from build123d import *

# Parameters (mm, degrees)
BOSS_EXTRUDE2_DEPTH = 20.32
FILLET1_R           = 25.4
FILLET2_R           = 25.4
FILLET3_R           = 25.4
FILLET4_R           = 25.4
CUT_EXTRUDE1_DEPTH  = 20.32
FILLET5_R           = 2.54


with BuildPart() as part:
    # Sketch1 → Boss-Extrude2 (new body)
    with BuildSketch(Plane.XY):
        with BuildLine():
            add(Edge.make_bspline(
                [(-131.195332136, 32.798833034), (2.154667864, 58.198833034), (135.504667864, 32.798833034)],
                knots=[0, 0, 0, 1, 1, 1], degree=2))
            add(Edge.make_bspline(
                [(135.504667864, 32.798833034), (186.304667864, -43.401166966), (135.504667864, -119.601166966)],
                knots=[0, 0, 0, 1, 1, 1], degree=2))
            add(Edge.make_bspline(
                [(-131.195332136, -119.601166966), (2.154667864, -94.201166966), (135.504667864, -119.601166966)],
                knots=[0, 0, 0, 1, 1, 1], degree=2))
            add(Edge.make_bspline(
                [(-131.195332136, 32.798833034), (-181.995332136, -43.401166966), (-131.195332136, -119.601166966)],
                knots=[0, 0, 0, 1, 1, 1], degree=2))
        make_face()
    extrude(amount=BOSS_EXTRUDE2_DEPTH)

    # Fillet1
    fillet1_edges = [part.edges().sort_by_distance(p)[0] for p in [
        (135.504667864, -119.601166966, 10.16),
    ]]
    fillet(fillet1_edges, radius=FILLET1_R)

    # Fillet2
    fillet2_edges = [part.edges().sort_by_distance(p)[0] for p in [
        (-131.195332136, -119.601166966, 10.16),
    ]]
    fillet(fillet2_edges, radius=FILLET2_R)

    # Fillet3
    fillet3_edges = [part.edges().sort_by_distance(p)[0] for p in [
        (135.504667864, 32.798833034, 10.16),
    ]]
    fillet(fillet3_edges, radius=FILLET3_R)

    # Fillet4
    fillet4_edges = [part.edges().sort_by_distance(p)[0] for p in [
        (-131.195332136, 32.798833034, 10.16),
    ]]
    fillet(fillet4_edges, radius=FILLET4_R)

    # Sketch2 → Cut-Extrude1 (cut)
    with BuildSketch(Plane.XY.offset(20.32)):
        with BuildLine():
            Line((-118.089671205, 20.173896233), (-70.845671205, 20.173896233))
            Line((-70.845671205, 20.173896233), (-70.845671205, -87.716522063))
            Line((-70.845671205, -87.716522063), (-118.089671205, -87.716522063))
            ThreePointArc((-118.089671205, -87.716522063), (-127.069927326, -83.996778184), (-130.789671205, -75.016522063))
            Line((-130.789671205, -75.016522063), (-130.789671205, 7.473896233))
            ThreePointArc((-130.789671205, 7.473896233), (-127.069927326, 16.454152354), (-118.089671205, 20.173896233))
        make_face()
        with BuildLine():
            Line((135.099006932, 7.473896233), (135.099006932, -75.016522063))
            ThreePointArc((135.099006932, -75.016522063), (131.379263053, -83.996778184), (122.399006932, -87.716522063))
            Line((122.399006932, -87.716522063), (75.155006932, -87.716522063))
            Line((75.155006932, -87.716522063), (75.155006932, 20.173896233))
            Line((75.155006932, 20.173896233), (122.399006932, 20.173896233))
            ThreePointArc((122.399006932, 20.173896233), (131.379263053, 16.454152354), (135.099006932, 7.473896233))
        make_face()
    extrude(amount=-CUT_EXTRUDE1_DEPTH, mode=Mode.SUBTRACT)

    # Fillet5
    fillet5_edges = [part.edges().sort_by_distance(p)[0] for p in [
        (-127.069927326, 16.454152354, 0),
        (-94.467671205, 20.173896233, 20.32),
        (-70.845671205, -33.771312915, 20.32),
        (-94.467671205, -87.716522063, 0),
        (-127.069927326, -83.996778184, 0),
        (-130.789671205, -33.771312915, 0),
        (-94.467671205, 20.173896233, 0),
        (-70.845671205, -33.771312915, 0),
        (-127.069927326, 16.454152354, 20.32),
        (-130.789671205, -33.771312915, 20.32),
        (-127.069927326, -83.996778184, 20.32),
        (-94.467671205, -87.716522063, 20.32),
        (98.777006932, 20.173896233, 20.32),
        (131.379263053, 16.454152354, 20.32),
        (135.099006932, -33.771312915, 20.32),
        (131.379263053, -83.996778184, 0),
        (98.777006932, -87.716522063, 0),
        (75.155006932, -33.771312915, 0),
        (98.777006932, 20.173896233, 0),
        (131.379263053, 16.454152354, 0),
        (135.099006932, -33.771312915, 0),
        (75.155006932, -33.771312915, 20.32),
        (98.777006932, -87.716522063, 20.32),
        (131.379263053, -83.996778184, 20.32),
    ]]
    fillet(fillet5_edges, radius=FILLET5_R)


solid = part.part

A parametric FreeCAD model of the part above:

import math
import FreeCAD as App
import Part
import Sketcher

V = App.Vector
Q = App.Units.Quantity


def edges_at(feature, points):
    """Names of the edges that pass closest to the given points."""
    edges = feature.Shape.Edges
    near = lambda p: min(range(len(edges)), key=lambda i: edges[i].distToShape(Part.Vertex(*p))[0])
    return sorted({f"Edge{near(p) + 1}" for p in points})

doc = App.newDocument("Part")
body = doc.addObject("PartDesign::Body", "Body")

sketch1 = body.newObject("Sketcher::SketchObject", "Sketch")
sketch1.AttachmentSupport = (doc.getObject("XY_Plane"), [""])
sketch1.MapMode = "FlatFace"
sketch1.addGeometry([
    Part.BSplineCurve([V(-131.195332, 32.798833, 0), V(2.154668, 58.198833, 0), V(135.504668, 32.798833, 0)], [3, 3], [0, 1], False, 2, [1, 1, 1], False),
    Part.BSplineCurve([V(-131.195332, 32.798833, 0), V(-181.995332, -43.401167, 0), V(-131.195332, -119.601167, 0)], [3, 3], [0, 1], False, 2, [1, 1, 1], False),
    Part.BSplineCurve([V(-131.195332, -119.601167, 0), V(2.154668, -94.201167, 0), V(135.504668, -119.601167, 0)], [3, 3], [0, 1], False, 2, [1, 1, 1], False),
    Part.BSplineCurve([V(135.504668, 32.798833, 0), V(186.304668, -43.401167, 0), V(135.504668, -119.601167, 0)], [3, 3], [0, 1], False, 2, [1, 1, 1], False),
], False)
sketch1.addConstraint([
    Sketcher.Constraint("Block", 0),
    Sketcher.Constraint("Block", 1),
    Sketcher.Constraint("Block", 2),
    Sketcher.Constraint("Block", 3),
])
pad1 = body.newObject("PartDesign::Pad", "Pad")
pad1.Profile = sketch1
pad1.Length = Q("0.8 in")
doc.recompute()

fillet = body.newObject("PartDesign::Fillet", "Fillet")
fillet.Base = (pad1, edges_at(pad1, [(135.505, -119.601, 10.16)]))
fillet.Radius = Q("1 in")
doc.recompute()

fillet2 = body.newObject("PartDesign::Fillet", "Fillet001")
fillet2.Base = (fillet, edges_at(fillet, [(-131.195, -119.601, 10.16)]))
fillet2.Radius = Q("1 in")
doc.recompute()

fillet3 = body.newObject("PartDesign::Fillet", "Fillet002")
fillet3.Base = (fillet2, edges_at(fillet2, [(135.505, 32.799, 10.16)]))
fillet3.Radius = Q("1 in")
doc.recompute()

fillet4 = body.newObject("PartDesign::Fillet", "Fillet003")
fillet4.Base = (fillet3, edges_at(fillet3, [(-131.195, 32.799, 10.16)]))
fillet4.Radius = Q("1 in")

sketch2 = body.newObject("Sketcher::SketchObject", "Sketch001")
sketch2.AttachmentSupport = (doc.getObject("XY_Plane"), [""])
sketch2.MapMode = "FlatFace"
sketch2.AttachmentOffset = App.Placement(V(0, 0, 0.8 * 25.4), App.Rotation())
sketch2.addGeometry([
    Part.LineSegment(V(-71, 20, 0), V(-118, 20, 0)),
    Part.ArcOfCircle(Part.Circle(V(-118, 7, 0), V(0, 0, 1), 13), math.radians(90), math.radians(180)),
    Part.LineSegment(V(-131, 7, 0), V(-131, -75, 0)),
    Part.ArcOfCircle(Part.Circle(V(-118, -75, 0), V(0, 0, 1), 13), math.radians(180), math.radians(270)),
    Part.LineSegment(V(-118, -88, 0), V(-71, -88, 0)),
    Part.LineSegment(V(-71, -88, 0), V(-71, 20, 0)),
    Part.LineSegment(V(135, -75, 0), V(135, 7, 0)),
    Part.ArcOfCircle(Part.Circle(V(122, 7, 0), V(0, 0, 1), 13), math.radians(0), math.radians(90)),
    Part.LineSegment(V(122, 20, 0), V(75, 20, 0)),
    Part.LineSegment(V(75, 20, 0), V(75, -88, 0)),
    Part.LineSegment(V(75, -88, 0), V(122, -88, 0)),
    Part.ArcOfCircle(Part.Circle(V(122, -75, 0), V(0, 0, 1), 13), math.radians(-90), math.radians(0)),
], False)
sketch2.addConstraint([
    Sketcher.Constraint("Tangent", 0, 2, 1, 1),
    Sketcher.Constraint("Tangent", 1, 2, 2, 1),
    Sketcher.Constraint("Tangent", 2, 2, 3, 1),
    Sketcher.Constraint("Tangent", 3, 2, 4, 1),
    Sketcher.Constraint("Coincident", 4, 2, 5, 1),
    Sketcher.Constraint("Coincident", 5, 2, 0, 1),
    Sketcher.Constraint("Tangent", 6, 2, 7, 1),
    Sketcher.Constraint("Tangent", 7, 2, 8, 1),
    Sketcher.Constraint("Coincident", 8, 2, 9, 1),
    Sketcher.Constraint("Coincident", 9, 2, 10, 1),
    Sketcher.Constraint("Tangent", 10, 2, 11, 1),
    Sketcher.Constraint("Tangent", 11, 2, 6, 1),
    Sketcher.Constraint("Horizontal", 0),
    Sketcher.Constraint("Vertical", 2),
    Sketcher.Constraint("Horizontal", 4),
    Sketcher.Constraint("Vertical", 5),
    Sketcher.Constraint("Vertical", 6),
    Sketcher.Constraint("Horizontal", 8),
    Sketcher.Constraint("Vertical", 9),
    Sketcher.Constraint("Horizontal", 10),
    Sketcher.Constraint("Equal", 1, 3),
    Sketcher.Constraint("Equal", 3, 7),
    Sketcher.Constraint("Equal", 7, 11),
    Sketcher.Constraint("Horizontal", 1, 3, 7, 3),
    Sketcher.Constraint("Horizontal", 3, 3, 11, 3),
    Sketcher.Constraint("Equal", 4, 8),
    Sketcher.Constraint("Radius", 1, Q("0.5 in")),
    Sketcher.Constraint("DistanceX", 0, 2, 0, 1, Q("1.86 in")),
    Sketcher.Constraint("DistanceY", 2, 2, 2, 1, Q("82.490418 mm")),
    Sketcher.Constraint("DistanceX", 1, 3, -1, 1, Q("118.089671 mm")),
    Sketcher.Constraint("DistanceX", 1, 3, 7, 3, Q("240.488678 mm")),
    Sketcher.Constraint("DistanceY", -1, 1, 1, 3, Q("7.473896 mm")),
])
pocket1 = body.newObject("PartDesign::Pocket", "Pocket")
pocket1.Profile = sketch2
pocket1.Length = Q("0.8 in")
doc.recompute()

fillet5 = body.newObject("PartDesign::Fillet", "Fillet004")
fillet5.Base = (pocket1, edges_at(pocket1, [
    (-127.07, 16.454, 0),
    (-94.468, 20.174, 20.32),
    (-70.846, -33.771, 20.32),
    (-94.468, -87.717, 0),
    (-127.07, -83.997, 0),
    (-130.79, -33.771, 0),
    (-94.468, 20.174, 0),
    (-70.846, -33.771, 0),
    (-127.07, 16.454, 20.32),
    (-130.79, -33.771, 20.32),
    (-127.07, -83.997, 20.32),
    (-94.468, -87.717, 20.32),
    (98.777, 20.174, 20.32),
    (131.379, 16.454, 20.32),
    (135.099, -33.771, 20.32),
    (131.379, -83.997, 0),
    (98.777, -87.717, 0),
    (75.155, -33.771, 0),
    (98.777, 20.174, 0),
    (131.379, 16.454, 0),
    (135.099, -33.771, 0),
    (75.155, -33.771, 20.32),
    (98.777, -87.717, 20.32),
    (131.379, -83.997, 20.32),
]))
fillet5.Radius = Q("0.1 in")

doc.recompute()
